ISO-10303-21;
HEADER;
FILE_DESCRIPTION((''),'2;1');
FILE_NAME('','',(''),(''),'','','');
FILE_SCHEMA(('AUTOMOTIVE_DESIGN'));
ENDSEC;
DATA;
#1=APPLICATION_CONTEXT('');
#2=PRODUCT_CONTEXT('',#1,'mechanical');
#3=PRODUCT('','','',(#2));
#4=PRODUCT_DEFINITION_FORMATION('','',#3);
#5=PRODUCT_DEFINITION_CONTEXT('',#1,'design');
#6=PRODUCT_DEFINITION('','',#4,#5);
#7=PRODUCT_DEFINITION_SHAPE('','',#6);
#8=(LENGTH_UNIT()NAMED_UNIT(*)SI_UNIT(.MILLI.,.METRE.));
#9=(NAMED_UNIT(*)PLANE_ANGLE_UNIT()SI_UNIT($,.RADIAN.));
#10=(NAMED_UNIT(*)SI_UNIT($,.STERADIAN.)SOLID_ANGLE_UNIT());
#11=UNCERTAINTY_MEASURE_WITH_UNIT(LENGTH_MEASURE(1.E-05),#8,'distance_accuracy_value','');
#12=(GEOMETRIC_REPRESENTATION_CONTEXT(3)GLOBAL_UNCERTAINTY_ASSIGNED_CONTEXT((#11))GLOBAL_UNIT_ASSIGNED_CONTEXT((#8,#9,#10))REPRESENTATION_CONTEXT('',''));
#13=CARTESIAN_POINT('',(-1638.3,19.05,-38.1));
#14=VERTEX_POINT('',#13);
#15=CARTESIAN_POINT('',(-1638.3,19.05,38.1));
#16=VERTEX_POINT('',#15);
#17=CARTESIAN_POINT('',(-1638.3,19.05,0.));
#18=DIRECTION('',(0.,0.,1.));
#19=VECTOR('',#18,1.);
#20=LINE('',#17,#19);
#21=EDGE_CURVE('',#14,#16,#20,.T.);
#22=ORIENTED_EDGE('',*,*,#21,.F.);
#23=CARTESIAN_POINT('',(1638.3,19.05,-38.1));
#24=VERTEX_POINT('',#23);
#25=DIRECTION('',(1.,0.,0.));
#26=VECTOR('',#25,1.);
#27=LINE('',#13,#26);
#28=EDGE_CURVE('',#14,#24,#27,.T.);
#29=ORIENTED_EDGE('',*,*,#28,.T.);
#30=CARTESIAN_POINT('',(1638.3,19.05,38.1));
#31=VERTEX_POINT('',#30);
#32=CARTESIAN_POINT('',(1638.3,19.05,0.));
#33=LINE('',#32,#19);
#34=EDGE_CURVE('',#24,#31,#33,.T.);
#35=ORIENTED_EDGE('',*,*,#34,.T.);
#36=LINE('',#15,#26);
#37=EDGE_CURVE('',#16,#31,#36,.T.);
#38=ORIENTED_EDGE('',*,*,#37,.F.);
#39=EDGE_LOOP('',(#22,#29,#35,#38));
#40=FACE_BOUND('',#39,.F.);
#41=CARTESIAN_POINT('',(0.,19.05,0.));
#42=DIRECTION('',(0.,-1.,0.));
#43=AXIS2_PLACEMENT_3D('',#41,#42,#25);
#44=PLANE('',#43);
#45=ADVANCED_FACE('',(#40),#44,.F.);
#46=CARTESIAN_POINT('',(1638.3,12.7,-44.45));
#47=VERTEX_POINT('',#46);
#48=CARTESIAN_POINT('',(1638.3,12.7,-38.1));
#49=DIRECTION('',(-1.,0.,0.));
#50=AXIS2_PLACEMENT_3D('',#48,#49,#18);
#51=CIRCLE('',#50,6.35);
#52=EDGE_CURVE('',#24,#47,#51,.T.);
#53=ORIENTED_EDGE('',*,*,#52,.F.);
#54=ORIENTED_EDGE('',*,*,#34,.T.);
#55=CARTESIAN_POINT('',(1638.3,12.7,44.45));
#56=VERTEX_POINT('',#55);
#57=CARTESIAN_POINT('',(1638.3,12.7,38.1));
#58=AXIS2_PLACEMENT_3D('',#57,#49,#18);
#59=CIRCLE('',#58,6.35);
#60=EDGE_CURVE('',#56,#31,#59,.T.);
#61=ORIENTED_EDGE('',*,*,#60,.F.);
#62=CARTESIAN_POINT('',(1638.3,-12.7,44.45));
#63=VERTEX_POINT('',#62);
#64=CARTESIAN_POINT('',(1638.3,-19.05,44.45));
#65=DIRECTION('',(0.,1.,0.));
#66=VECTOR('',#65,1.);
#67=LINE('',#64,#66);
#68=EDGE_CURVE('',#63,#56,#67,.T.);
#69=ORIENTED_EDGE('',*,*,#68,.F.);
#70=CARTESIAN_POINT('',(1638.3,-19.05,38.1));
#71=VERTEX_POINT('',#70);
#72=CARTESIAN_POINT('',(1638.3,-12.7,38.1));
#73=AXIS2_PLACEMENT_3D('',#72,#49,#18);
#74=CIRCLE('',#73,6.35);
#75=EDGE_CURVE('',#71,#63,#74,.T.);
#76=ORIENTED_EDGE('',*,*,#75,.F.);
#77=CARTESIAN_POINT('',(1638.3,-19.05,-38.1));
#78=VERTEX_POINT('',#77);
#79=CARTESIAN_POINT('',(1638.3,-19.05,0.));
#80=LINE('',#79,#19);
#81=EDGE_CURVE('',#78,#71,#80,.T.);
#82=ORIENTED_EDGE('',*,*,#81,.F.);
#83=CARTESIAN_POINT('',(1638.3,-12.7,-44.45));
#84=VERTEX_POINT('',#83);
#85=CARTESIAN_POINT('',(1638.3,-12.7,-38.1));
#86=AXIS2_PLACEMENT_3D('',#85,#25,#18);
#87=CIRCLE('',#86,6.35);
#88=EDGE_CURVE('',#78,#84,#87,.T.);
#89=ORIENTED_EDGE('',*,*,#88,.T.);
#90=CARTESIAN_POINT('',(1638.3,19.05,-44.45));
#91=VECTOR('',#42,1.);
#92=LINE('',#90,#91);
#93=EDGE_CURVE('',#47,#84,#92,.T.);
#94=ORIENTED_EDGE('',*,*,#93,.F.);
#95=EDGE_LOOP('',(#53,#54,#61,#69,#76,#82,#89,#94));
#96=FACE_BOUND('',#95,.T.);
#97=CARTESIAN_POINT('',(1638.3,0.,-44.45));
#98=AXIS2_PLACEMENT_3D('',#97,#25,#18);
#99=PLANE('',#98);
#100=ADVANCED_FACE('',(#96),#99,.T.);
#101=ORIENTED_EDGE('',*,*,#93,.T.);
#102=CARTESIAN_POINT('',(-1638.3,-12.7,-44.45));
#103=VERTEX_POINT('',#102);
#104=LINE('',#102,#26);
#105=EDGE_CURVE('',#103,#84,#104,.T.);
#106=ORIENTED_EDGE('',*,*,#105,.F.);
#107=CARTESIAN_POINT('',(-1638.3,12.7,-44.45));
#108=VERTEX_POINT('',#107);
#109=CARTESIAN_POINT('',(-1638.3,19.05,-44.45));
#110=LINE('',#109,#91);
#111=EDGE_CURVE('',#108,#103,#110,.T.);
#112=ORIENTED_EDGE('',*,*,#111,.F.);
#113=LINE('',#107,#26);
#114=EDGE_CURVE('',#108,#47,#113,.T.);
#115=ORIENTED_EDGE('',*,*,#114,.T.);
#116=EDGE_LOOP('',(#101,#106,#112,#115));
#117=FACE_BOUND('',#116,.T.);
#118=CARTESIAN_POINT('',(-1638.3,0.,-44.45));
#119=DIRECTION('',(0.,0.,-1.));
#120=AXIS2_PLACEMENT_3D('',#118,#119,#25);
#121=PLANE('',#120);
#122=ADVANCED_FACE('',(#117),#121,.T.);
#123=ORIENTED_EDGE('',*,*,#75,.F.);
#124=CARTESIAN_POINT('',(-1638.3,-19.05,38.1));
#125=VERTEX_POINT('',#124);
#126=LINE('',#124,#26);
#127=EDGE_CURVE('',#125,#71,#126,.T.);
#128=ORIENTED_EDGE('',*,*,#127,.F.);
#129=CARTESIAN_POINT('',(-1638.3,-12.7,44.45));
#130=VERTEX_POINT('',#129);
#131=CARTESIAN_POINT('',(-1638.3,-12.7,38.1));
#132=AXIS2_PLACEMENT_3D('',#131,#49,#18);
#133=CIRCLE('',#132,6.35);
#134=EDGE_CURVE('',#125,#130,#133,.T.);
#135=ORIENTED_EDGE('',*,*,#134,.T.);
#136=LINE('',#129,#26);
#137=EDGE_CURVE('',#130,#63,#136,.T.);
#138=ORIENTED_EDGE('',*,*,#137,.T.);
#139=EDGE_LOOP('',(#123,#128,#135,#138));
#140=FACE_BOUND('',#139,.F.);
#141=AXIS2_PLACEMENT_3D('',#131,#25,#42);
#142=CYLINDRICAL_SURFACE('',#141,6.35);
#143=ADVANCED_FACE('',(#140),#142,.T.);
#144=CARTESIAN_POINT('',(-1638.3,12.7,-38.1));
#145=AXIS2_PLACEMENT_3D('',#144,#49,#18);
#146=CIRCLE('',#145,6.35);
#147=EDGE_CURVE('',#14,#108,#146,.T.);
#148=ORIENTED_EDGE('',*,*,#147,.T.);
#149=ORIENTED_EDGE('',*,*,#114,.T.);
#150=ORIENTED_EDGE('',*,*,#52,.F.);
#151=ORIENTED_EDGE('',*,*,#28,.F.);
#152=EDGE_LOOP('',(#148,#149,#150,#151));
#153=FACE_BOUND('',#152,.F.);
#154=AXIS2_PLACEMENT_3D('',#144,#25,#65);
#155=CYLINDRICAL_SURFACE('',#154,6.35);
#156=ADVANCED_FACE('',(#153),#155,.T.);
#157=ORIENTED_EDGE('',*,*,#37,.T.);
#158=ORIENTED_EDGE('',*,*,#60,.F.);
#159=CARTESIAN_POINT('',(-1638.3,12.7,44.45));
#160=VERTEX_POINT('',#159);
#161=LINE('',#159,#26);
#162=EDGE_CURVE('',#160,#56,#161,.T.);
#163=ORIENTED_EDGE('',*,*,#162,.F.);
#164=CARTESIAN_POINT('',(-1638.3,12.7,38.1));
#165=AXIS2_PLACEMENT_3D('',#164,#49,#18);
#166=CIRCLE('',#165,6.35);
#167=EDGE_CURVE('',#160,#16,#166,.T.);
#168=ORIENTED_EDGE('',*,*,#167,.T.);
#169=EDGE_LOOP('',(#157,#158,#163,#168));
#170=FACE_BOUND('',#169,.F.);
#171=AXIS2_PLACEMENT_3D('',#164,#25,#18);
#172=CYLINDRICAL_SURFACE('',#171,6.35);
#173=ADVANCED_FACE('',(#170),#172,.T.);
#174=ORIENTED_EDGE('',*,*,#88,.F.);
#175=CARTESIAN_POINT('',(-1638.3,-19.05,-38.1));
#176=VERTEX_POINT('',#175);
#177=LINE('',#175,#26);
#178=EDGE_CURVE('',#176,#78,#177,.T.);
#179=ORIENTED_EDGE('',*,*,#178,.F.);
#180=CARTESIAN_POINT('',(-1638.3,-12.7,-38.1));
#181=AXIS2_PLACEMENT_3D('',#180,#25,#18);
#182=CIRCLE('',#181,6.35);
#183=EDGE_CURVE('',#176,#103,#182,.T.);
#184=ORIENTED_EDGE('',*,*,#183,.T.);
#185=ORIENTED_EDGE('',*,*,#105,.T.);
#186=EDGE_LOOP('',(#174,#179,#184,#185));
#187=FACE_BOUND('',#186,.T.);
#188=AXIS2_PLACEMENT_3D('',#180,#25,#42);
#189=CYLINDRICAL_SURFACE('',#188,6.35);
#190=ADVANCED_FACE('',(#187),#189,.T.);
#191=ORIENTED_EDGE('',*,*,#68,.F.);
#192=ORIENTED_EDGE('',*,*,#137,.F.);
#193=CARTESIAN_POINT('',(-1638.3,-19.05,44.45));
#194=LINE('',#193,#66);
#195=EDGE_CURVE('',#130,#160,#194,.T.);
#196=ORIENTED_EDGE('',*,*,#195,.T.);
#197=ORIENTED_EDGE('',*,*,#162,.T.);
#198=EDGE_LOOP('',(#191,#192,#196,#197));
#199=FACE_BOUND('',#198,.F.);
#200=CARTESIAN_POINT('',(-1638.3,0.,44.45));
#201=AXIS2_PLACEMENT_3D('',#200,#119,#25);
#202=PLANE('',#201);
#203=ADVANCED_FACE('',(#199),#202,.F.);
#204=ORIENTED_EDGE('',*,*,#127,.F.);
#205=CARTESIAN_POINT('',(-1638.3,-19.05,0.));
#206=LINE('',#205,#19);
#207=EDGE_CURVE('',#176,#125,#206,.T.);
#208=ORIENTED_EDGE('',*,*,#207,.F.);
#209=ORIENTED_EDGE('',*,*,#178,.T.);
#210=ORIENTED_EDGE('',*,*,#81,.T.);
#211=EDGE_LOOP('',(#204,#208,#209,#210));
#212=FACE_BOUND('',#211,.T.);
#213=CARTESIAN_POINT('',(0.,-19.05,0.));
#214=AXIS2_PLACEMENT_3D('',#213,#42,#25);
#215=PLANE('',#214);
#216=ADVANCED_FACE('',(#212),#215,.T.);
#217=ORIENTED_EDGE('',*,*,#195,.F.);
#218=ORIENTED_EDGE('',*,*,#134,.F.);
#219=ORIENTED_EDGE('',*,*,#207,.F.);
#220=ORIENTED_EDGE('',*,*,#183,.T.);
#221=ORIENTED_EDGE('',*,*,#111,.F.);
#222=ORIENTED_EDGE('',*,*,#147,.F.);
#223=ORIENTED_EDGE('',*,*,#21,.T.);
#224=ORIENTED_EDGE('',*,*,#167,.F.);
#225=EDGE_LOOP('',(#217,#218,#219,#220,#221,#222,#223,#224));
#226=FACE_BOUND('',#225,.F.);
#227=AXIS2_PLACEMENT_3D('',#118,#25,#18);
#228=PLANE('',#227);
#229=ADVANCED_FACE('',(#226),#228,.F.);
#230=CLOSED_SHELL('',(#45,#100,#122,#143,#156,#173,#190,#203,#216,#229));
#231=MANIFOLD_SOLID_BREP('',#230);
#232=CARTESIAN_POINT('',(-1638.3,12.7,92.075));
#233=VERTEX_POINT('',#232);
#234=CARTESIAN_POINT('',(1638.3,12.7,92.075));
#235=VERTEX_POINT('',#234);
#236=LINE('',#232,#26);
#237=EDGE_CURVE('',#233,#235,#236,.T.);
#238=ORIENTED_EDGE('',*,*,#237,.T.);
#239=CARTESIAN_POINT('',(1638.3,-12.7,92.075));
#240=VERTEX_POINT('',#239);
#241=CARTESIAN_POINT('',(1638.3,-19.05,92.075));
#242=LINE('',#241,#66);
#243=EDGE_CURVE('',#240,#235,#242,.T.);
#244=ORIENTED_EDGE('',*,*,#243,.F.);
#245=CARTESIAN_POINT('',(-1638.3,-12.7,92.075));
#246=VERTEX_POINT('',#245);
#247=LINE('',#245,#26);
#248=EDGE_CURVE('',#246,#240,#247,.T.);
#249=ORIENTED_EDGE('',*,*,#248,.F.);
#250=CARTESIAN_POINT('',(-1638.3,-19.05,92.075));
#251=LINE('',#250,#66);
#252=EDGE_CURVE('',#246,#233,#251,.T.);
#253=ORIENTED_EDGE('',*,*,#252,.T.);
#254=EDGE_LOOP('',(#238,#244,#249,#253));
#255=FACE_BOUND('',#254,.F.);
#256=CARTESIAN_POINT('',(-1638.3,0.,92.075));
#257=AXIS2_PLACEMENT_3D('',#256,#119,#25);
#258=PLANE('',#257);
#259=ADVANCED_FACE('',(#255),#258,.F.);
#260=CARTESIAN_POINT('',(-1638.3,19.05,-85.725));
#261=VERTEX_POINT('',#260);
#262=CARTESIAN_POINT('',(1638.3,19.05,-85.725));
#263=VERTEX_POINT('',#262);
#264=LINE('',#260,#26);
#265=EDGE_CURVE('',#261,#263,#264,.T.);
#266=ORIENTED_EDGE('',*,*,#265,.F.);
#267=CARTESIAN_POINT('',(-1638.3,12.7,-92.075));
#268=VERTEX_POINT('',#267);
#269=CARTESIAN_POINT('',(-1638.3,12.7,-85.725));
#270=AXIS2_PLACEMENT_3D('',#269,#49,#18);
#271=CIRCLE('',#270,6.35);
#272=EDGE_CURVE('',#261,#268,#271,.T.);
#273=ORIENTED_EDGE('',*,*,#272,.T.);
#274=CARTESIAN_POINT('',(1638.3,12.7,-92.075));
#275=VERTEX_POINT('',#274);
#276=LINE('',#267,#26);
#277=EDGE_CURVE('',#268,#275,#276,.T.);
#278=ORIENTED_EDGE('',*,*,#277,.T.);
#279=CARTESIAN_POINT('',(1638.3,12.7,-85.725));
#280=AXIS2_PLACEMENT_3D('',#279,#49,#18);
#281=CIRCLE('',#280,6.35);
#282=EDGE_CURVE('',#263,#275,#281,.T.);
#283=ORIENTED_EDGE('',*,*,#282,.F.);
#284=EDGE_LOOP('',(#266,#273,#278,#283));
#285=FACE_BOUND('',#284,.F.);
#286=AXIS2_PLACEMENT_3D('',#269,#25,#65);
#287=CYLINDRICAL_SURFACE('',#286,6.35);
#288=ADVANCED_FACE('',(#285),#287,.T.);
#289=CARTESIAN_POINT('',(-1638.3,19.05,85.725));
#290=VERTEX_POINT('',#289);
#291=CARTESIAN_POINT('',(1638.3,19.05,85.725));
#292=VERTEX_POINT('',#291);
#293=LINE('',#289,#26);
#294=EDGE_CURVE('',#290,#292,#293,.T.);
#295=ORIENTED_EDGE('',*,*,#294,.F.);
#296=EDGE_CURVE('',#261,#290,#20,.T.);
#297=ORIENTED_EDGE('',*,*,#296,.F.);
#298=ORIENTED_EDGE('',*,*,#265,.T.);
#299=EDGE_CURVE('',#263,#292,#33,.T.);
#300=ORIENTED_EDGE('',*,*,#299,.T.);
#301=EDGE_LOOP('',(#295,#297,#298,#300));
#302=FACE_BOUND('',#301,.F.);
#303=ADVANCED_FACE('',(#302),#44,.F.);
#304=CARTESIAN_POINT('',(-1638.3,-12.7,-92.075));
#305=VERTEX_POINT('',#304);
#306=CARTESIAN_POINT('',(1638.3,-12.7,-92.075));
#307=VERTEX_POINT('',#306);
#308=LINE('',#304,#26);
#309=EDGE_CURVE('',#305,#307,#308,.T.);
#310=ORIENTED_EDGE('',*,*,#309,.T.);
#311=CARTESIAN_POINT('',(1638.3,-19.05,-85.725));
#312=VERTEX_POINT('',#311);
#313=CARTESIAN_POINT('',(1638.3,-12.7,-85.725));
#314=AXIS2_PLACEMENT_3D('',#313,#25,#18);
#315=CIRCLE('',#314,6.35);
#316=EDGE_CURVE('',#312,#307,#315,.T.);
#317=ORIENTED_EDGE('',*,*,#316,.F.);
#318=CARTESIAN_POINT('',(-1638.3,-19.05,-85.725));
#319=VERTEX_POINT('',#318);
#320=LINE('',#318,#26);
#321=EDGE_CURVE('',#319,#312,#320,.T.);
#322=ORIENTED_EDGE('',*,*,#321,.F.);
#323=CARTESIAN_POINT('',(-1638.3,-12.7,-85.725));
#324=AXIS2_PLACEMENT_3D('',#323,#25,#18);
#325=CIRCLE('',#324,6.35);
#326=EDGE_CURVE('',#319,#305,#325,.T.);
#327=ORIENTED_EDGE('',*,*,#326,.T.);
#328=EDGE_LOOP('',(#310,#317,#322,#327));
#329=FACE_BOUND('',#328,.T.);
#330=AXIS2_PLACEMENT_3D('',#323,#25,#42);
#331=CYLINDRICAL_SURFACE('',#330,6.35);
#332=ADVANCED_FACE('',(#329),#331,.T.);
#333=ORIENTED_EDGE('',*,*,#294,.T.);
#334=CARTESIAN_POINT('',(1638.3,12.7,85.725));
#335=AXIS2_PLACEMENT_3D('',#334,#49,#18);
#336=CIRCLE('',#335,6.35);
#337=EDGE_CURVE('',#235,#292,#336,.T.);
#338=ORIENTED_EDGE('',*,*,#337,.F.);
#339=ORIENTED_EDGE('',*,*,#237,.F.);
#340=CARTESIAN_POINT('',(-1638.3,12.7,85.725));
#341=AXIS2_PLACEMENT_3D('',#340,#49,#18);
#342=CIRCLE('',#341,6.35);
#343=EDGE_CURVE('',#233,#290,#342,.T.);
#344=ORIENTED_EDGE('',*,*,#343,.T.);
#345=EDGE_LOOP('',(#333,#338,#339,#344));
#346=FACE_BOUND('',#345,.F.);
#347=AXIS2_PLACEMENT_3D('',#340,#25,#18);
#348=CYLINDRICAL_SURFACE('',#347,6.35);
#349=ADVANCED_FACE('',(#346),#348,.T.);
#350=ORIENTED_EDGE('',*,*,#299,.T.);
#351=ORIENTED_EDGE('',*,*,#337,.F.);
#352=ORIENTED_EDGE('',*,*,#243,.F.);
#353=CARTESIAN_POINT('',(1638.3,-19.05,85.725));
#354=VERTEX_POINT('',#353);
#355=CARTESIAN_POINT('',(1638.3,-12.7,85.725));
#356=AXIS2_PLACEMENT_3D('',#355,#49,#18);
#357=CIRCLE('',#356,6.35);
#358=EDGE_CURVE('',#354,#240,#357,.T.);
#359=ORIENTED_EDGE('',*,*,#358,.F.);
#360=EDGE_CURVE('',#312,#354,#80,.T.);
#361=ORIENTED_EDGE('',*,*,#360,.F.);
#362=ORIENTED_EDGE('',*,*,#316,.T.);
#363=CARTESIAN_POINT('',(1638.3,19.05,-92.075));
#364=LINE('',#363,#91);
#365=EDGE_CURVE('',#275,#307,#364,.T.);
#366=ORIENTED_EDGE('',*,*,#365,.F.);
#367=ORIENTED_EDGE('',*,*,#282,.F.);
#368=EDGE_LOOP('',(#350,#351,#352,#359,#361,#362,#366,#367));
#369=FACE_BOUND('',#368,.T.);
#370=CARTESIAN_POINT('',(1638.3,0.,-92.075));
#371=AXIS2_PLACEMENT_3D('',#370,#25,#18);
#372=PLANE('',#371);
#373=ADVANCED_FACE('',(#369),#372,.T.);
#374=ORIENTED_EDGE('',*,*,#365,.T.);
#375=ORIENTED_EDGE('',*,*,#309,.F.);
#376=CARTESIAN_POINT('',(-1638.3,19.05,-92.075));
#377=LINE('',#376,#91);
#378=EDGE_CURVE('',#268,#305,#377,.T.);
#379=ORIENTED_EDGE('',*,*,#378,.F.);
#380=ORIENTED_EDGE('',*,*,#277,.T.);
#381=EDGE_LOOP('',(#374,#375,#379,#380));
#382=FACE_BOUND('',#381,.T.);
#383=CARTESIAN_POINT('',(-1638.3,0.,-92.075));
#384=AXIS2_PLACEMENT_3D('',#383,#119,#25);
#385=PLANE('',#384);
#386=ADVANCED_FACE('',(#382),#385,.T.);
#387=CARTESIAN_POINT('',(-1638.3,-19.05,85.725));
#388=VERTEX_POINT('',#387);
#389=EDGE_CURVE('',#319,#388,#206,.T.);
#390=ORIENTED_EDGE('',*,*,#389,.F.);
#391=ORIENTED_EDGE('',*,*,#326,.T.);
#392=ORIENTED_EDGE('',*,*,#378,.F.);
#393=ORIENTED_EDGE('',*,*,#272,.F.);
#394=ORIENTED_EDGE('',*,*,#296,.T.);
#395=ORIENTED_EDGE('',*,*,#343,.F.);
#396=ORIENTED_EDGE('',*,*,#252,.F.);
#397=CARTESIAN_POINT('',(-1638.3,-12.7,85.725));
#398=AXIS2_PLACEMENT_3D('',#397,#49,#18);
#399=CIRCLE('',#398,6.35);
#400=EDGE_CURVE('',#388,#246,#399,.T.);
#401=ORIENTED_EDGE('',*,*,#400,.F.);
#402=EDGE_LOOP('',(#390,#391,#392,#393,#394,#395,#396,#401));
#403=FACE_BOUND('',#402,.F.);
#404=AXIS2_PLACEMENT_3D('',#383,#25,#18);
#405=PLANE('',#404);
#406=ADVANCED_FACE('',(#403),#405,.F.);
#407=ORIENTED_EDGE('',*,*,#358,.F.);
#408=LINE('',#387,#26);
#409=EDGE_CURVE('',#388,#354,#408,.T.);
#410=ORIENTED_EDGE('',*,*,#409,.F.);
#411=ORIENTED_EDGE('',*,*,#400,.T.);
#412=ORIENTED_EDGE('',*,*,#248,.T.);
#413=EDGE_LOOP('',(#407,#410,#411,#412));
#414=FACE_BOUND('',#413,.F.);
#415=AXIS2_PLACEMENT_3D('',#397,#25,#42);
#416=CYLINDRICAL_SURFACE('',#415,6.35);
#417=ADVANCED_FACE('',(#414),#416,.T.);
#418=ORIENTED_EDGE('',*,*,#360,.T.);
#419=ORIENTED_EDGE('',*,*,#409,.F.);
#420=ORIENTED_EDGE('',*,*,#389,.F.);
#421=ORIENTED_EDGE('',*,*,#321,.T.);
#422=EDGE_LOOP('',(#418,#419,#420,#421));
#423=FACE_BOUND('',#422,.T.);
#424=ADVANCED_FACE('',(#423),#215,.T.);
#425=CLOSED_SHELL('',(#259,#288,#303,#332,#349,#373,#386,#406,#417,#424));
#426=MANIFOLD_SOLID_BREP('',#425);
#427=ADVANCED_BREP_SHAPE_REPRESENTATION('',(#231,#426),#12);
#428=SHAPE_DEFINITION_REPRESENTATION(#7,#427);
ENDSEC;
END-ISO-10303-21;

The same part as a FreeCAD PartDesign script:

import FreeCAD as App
import Part
import Sketcher

V = App.Vector
Q = App.Units.Quantity


def edges_at(feature, points):
    """Names of the edges that pass closest to the given points."""
    edges = feature.Shape.Edges
    near = lambda p: min(range(len(edges)), key=lambda i: edges[i].distToShape(Part.Vertex(*p))[0])
    return sorted({f"Edge{near(p) + 1}" for p in points})


def add_polygon(sketch, points):
    """Adds a closed chain of lines whose ends are joined by coincident constraints."""
    first, n = sketch.GeometryCount, len(points)
    for a, b in zip(points, points[1:] + points[:1]):
        sketch.addGeometry(Part.LineSegment(App.Vector(*a, 0), App.Vector(*b, 0)), False)
    for i in range(n):
        sketch.addConstraint(Sketcher.Constraint("Coincident", first + i, 2, first + (i + 1) % n, 1))

doc = App.newDocument("Part")
params = doc.addObject("Spreadsheet::Sheet", "Params")
for row, (alias, value) in enumerate([
    ("sketch1_width", "129 in"),
    ("sketch1_height", "3.5 in"),
    ("pad1_length", "1.5 in"),
    ("fillet_radius", "0.25 in"),
    ("sketch2_width", "129 in"),
    ("sketch2_height", "7.25 in"),
    ("pad2_length", "1.5 in"),
    ("fillet2_radius", "0.25 in"),
], start=1):
    params.set(f"A{row}", alias)
    params.set(f"B{row}", "=" + value)
    params.setAlias(f"B{row}", alias)

body = doc.addObject("PartDesign::Body", "Body")

sketch1 = doc.addObject("Sketcher::SketchObject", "Sketch")
body.addObject(sketch1)
sketch1.AttachmentSupport = (doc.XZ_Plane, [""])
sketch1.MapMode = "FlatFace"
add_polygon(sketch1, [(-1638.3, 44.45), (-1638.3, -44.45), (1638.3, -44.45), (1638.3, 44.45)])
sketch1.addConstraint([
    Sketcher.Constraint("Vertical", 0),
    Sketcher.Constraint("Horizontal", 1),
    Sketcher.Constraint("Vertical", 2),
    Sketcher.Constraint("Horizontal", 3),
    Sketcher.Constraint("Symmetric", 0, 2, 2, 2, -1, 1),
    Sketcher.Constraint("DistanceX", 1, 1, 1, 2, Q("129 in")),
    Sketcher.Constraint("DistanceY", 0, 2, 0, 1, Q("3.5 in")),
])
sketch1.setExpression("Constraints[9]", "Params.sketch1_width")
sketch1.setExpression("Constraints[10]", "Params.sketch1_height")
pad1 = doc.addObject("PartDesign::Pad", "Pad")
body.addObject(pad1)
pad1.Profile = sketch1
pad1.setExpression("Length", "Params.pad1_length")
pad1.Midplane = True
doc.recompute()

fillet = doc.addObject("PartDesign::Fillet", "Fillet")
body.addObject(fillet)
fillet.Base = (pad1, edges_at(pad1, [
    (0, -19.05, 44.45),
    (0, 19.05, 44.45),
    (0, 19.05, -44.45),
    (0, -19.05, -44.45),
]))
fillet.setExpression("Radius", "Params.fillet_radius")
body2 = doc.addObject("PartDesign::Body", "Body001")

sketch2 = doc.addObject("Sketcher::SketchObject", "Sketch001")
body2.addObject(sketch2)
sketch2.AttachmentSupport = (doc.getObject("XZ_Plane001"), [""])
sketch2.MapMode = "FlatFace"
add_polygon(sketch2, [(-1638.3, 92.075), (-1638.3, -92.075), (1638.3, -92.075), (1638.3, 92.075)])
sketch2.addConstraint([
    Sketcher.Constraint("Vertical", 0),
    Sketcher.Constraint("Horizontal", 1),
    Sketcher.Constraint("Vertical", 2),
    Sketcher.Constraint("Horizontal", 3),
    Sketcher.Constraint("Symmetric", 0, 2, 2, 2, -1, 1),
    Sketcher.Constraint("DistanceX", 1, 1, 1, 2, Q("129 in")),
    Sketcher.Constraint("DistanceY", 0, 2, 0, 1, Q("7.25 in")),
])
sketch2.setExpression("Constraints[9]", "Params.sketch2_width")
sketch2.setExpression("Constraints[10]", "Params.sketch2_height")
pad2 = doc.addObject("PartDesign::Pad", "Pad001")
body2.addObject(pad2)
pad2.Profile = sketch2
pad2.setExpression("Length", "Params.pad2_length")
pad2.Midplane = True
doc.recompute()

fillet2 = doc.addObject("PartDesign::Fillet", "Fillet001")
body2.addObject(fillet2)
fillet2.Base = (pad2, edges_at(pad2, [
    (0, -19.05, 92.075),
    (0, 19.05, 92.075),
    (0, -19.05, -92.075),
    (0, 19.05, -92.075),
]))
fillet2.setExpression("Radius", "Params.fillet2_radius")

doc.recompute()
